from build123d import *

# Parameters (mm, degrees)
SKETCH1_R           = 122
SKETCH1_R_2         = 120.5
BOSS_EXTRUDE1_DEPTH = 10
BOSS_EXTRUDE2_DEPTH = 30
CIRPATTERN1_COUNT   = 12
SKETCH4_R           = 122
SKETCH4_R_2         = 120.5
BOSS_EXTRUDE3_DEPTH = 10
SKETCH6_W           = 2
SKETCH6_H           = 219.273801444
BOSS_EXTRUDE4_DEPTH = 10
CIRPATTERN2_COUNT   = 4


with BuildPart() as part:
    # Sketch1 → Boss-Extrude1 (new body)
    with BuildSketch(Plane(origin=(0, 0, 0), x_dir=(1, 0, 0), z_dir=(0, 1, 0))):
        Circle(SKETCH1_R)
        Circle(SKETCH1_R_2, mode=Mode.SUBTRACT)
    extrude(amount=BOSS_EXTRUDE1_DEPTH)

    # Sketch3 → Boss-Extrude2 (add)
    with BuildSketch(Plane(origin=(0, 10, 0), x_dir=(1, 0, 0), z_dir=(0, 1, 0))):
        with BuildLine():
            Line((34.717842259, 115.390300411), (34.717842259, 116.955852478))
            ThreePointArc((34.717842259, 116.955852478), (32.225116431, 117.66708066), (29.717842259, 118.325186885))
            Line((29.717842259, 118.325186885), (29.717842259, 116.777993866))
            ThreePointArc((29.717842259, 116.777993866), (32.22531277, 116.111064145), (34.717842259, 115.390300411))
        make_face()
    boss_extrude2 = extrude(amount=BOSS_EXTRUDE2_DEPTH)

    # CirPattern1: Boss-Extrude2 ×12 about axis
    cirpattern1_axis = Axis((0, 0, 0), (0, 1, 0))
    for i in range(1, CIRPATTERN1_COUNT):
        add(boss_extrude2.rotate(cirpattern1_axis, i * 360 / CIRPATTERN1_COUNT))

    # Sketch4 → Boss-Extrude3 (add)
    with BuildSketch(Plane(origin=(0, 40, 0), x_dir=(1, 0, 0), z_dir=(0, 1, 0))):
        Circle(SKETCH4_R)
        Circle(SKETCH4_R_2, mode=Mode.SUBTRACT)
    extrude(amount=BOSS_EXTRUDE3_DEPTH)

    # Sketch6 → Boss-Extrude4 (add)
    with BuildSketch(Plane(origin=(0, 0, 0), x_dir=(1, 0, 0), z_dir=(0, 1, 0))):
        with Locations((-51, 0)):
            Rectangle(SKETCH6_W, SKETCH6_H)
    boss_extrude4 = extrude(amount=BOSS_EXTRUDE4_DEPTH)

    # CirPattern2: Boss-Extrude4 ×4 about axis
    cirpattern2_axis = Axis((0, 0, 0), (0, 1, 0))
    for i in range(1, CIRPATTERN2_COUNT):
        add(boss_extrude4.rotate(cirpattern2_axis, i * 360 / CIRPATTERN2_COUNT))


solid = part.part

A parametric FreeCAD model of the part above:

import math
import FreeCAD as App
import Part
import Sketcher


def add_polygon(sketch, points):
    """Adds a closed chain of lines whose ends are joined by coincident constraints."""
    first, n = sketch.GeometryCount, len(points)
    for a, b in zip(points, points[1:] + points[:1]):
        sketch.addGeometry(Part.LineSegment(App.Vector(*a, 0), App.Vector(*b, 0)), False)
    for i in range(n):
        sketch.addConstraint(Sketcher.Constraint("Coincident", first + i, 2, first + (i + 1) % n, 1))

doc = App.newDocument("Part")
body = doc.addObject("PartDesign::Body", "Body")

sketch1 = body.newObject("Sketcher::SketchObject", "Sketch")
sketch1.AttachmentSupport = (doc.getObject("XZ_Plane"), [""])
sketch1.MapMode = "FlatFace"
sketch1.addGeometry(Part.Circle(App.Vector(0, 0, 0), App.Vector(0, 0, 1), 122), False)
sketch1.addGeometry(Part.Circle(App.Vector(0, 0, 0), App.Vector(0, 0, 1), 120), False)
sketch1.addConstraint(Sketcher.Constraint("Coincident", 0, 3, -1, 1))
sketch1.addConstraint(Sketcher.Constraint("Coincident", 1, 3, -1, 1))
sketch1.addConstraint(Sketcher.Constraint("Diameter", 0, 244.0))
sketch1.addConstraint(Sketcher.Constraint("Diameter", 1, 241.0))
pad1 = body.newObject("PartDesign::Pad", "Pad")
pad1.Profile = sketch1
pad1.Length = 10
pad1.Reversed = True

sketch2 = body.newObject("Sketcher::SketchObject", "Sketch001")
sketch2.AttachmentSupport = (doc.getObject("XZ_Plane"), [""])
sketch2.MapMode = "FlatFace"
sketch2.AttachmentOffset = App.Placement(App.Vector(0, 0, -10), App.Rotation())
sketch2.addGeometry(Part.LineSegment(App.Vector(34.7, -115.4, 0), App.Vector(34.7, -117, 0)), False)
sketch2.addGeometry(Part.ArcOfCircle(Part.Circle(App.Vector(0, 0, 0), App.Vector(0, 0, 1), 122), math.radians(-75.9), math.radians(-73.47)), False)
sketch2.addGeometry(Part.LineSegment(App.Vector(29.7, -118.3, 0), App.Vector(29.7, -116.8, 0)), False)
sketch2.addGeometry(Part.ArcOfCircle(Part.Circle(App.Vector(0, 0, 0), App.Vector(0, 0, 1), 120.5), math.radians(-75.72), math.radians(-73.25)), False)
sketch2.addConstraint(Sketcher.Constraint("Coincident", 0, 2, 1, 2))
sketch2.addConstraint(Sketcher.Constraint("Coincident", 1, 1, 2, 1))
sketch2.addConstraint(Sketcher.Constraint("Coincident", 2, 2, 3, 1))
sketch2.addConstraint(Sketcher.Constraint("Coincident", 3, 2, 0, 1))
sketch2.addConstraint(Sketcher.Constraint("Vertical", 0))
sketch2.addConstraint(Sketcher.Constraint("Vertical", 2))
sketch2.addConstraint(Sketcher.Constraint("Coincident", 1, 3, -1, 1))
sketch2.addConstraint(Sketcher.Constraint("Coincident", 3, 3, -1, 1))
sketch2.addConstraint(Sketcher.Constraint("Radius", 1, 121.999998))
sketch2.addConstraint(Sketcher.Constraint("Radius", 3, 120.499999))
sketch2.addConstraint(Sketcher.Constraint("DistanceX", 1, 1, 0, 2, 5.0))
sketch2.addConstraint(Sketcher.Constraint("DistanceY", 3, 2, -1, 1, 115.3903))
pad2 = body.newObject("PartDesign::Pad", "Pad001")
pad2.Profile = sketch2
pad2.Length = 30
pad2.Reversed = True
doc.recompute()

polarpattern = body.newObject("PartDesign::PolarPattern", "PolarPattern")
polarpattern.Originals = [pad2]
polarpattern.Axis = (doc.getObject("Y_Axis"), [""])
polarpattern.Angle = 360
polarpattern.Occurrences = 12
body.Tip = polarpattern

sketch3 = body.newObject("Sketcher::SketchObject", "Sketch002")
sketch3.AttachmentSupport = (doc.getObject("XZ_Plane"), [""])
sketch3.MapMode = "FlatFace"
sketch3.AttachmentOffset = App.Placement(App.Vector(0, 0, -40), App.Rotation())
sketch3.addGeometry(Part.Circle(App.Vector(0, 0, 0), App.Vector(0, 0, 1), 122), False)
sketch3.addGeometry(Part.Circle(App.Vector(0, 0, 0), App.Vector(0, 0, 1), 120), False)
sketch3.addConstraint(Sketcher.Constraint("Coincident", 0, 3, -1, 1))
sketch3.addConstraint(Sketcher.Constraint("Coincident", 1, 3, -1, 1))
sketch3.addConstraint(Sketcher.Constraint("Diameter", 0, 244.0))
sketch3.addConstraint(Sketcher.Constraint("Diameter", 1, 241.0))
pad3 = body.newObject("PartDesign::Pad", "Pad002")
pad3.Profile = sketch3
pad3.Length = 10
pad3.Reversed = True

sketch4 = body.newObject("Sketcher::SketchObject", "Sketch003")
sketch4.AttachmentSupport = (doc.getObject("XZ_Plane"), [""])
sketch4.MapMode = "FlatFace"
add_polygon(sketch4, [(-52, -109.6), (-52, 109.6), (-50, 109.6), (-50, -109.6)])
sketch4.addConstraint(Sketcher.Constraint("Vertical", 0))
sketch4.addConstraint(Sketcher.Constraint("Horizontal", 1))
sketch4.addConstraint(Sketcher.Constraint("Vertical", 2))
sketch4.addConstraint(Sketcher.Constraint("Horizontal", 3))
sketch4.addConstraint(Sketcher.Constraint("DistanceX", 1, 1, 1, 2, 2.0))
sketch4.addConstraint(Sketcher.Constraint("DistanceX", 0, 2, -1, 1, 52.0))
sketch4.addConstraint(Sketcher.Constraint("DistanceY", 0, 1, 0, 2, 219.273801))
sketch4.addConstraint(Sketcher.Constraint("DistanceY", -1, 1, 0, 2, 109.636901))
pad4 = body.newObject("PartDesign::Pad", "Pad003")
pad4.Profile = sketch4
pad4.Length = 10
pad4.Reversed = True
doc.recompute()

polarpattern2 = body.newObject("PartDesign::PolarPattern", "PolarPattern001")
polarpattern2.Originals = [pad4]
polarpattern2.Axis = (doc.getObject("Y_Axis"), [""])
polarpattern2.Angle = 360
polarpattern2.Occurrences = 4
body.Tip = polarpattern2

doc.recompute()
